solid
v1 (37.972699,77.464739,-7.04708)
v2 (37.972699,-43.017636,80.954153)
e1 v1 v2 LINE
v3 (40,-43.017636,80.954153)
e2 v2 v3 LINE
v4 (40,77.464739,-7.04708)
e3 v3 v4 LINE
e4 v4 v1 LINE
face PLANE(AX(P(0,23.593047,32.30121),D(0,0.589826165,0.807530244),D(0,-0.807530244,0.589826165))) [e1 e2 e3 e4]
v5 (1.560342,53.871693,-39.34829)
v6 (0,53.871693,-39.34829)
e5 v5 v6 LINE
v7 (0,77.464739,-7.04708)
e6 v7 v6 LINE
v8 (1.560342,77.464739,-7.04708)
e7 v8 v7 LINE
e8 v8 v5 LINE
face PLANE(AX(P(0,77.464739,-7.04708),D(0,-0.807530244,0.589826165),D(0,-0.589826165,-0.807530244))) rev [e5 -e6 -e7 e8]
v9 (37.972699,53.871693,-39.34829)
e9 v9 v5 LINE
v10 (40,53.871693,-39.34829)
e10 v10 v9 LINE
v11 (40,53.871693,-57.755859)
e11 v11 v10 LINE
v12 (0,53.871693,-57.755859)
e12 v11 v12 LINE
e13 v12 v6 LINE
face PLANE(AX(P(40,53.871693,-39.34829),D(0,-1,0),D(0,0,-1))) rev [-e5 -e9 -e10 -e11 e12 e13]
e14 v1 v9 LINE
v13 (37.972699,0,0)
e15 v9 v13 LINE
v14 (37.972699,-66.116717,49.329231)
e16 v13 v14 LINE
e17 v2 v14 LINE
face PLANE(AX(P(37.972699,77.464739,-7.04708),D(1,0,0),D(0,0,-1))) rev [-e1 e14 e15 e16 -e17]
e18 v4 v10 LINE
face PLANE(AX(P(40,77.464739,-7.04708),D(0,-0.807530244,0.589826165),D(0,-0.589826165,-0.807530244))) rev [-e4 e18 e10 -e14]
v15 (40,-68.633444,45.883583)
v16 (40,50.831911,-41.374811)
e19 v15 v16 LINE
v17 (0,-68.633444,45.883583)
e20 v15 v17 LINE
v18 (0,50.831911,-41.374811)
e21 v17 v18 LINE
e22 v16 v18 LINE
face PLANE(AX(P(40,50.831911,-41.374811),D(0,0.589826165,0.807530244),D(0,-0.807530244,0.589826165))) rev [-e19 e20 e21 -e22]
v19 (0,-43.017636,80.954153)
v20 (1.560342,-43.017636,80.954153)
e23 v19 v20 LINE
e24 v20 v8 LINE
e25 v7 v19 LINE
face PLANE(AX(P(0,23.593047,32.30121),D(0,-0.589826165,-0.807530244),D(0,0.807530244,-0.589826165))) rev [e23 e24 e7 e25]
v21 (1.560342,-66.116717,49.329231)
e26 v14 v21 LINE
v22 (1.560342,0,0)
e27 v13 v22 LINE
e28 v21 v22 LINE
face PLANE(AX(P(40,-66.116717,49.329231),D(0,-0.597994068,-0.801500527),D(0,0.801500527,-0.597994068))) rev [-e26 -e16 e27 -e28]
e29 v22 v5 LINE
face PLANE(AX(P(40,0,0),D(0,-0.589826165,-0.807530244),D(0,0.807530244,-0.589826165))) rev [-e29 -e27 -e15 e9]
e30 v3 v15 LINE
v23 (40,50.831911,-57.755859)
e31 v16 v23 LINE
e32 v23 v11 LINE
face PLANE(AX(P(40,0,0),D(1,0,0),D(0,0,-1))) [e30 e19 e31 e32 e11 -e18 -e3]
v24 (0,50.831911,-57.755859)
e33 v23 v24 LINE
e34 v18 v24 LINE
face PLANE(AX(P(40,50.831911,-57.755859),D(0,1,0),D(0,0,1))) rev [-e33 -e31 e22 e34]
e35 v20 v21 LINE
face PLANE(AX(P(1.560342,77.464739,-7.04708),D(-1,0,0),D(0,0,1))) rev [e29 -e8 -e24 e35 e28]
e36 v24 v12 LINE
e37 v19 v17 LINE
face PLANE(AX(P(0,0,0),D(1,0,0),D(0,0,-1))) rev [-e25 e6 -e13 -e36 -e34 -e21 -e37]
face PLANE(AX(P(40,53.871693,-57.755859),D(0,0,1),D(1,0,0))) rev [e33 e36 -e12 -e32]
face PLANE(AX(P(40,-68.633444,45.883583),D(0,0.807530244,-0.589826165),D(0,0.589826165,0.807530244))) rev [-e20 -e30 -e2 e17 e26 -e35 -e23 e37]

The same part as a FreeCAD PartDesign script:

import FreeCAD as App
import Part
import Sketcher

doc = App.newDocument("Part")
body = doc.addObject("PartDesign::Body", "Body")

# Sketch on YZ plane
sketch1 = body.newObject("Sketcher::SketchObject", "Sketch")
sketch1.AttachmentSupport = (doc.getObject("YZ_Plane"), [""])
sketch1.MapMode = "FlatFace"
sketch1.addGeometry(Part.LineSegment(App.Vector(53.871693, -39.34829, 0), App.Vector(0, 0, 0)), False)
sketch1.addGeometry(Part.LineSegment(App.Vector(0, 0, 0), App.Vector(-66.116717, 49.329231, 0)), False)
sketch1.addGeometry(Part.LineSegment(App.Vector(-66.116717, 49.329231, 0), App.Vector(-68.633444, 45.883583, 0)), False)
sketch1.addGeometry(Part.LineSegment(App.Vector(-68.633444, 45.883583, 0), App.Vector(50.831911, -41.374811, 0)), False)
sketch1.addGeometry(Part.LineSegment(App.Vector(50.831911, -41.374811, 0), App.Vector(50.831911, -57.755859, 0)), False)
sketch1.addGeometry(Part.LineSegment(App.Vector(50.831911, -57.755859, 0), App.Vector(53.871693, -57.755859, 0)), False)
sketch1.addGeometry(Part.LineSegment(App.Vector(53.871693, -57.755859, 0), App.Vector(53.871693, -39.34829, 0)), False)
sketch1.addConstraint(Sketcher.Constraint("Coincident", 0, 2, 1, 1))
sketch1.addConstraint(Sketcher.Constraint("Coincident", 1, 2, 2, 1))
sketch1.addConstraint(Sketcher.Constraint("Coincident", 2, 2, 3, 1))
sketch1.addConstraint(Sketcher.Constraint("Coincident", 3, 2, 4, 1))
sketch1.addConstraint(Sketcher.Constraint("Coincident", 4, 2, 5, 1))
sketch1.addConstraint(Sketcher.Constraint("Coincident", 5, 2, 6, 1))
sketch1.addConstraint(Sketcher.Constraint("Coincident", 6, 2, 0, 1))
sketch1.addConstraint(Sketcher.Constraint("Vertical", 4))
sketch1.addConstraint(Sketcher.Constraint("Horizontal", 5))
sketch1.addConstraint(Sketcher.Constraint("Vertical", 6))
sketch1.addConstraint(Sketcher.Constraint("Coincident", 0, 2, -1, 1))
sketch1.addConstraint(Sketcher.Constraint("Perpendicular", 0, 2))
sketch1.addConstraint(Sketcher.Constraint("Perpendicular", 2, 3))
sketch1.addConstraint(Sketcher.Constraint("DistanceY", 6, 1, 6, 2, 18.407569))
sketch1.addConstraint(Sketcher.Constraint("Distance", 1, 82.491171))
sketch1.addConstraint(Sketcher.Constraint("Distance", 3, 147.939171))
sketch1.addConstraint(Sketcher.Constraint("DistanceX", 5, 1, 5, 2, 3.039782))
sketch1.addConstraint(Sketcher.Constraint("DistanceY", 4, 2, 4, 1, 16.381048))
sketch1.addConstraint(Sketcher.Constraint("DistanceY", -1, 1, 1, 2, 49.329231))
sketch1.addConstraint(Sketcher.Constraint("DistanceX", -1, 1, 3, 2, 50.831911))
pad1 = body.newObject("PartDesign::Pad", "Pad")
pad1.Profile = sketch1
pad1.Length = 40

# Sketch on an angled plane
sketch2 = body.newObject("Sketcher::SketchObject", "Sketch001")
sketch2.Placement = App.Placement(App.Vector(0, 0, 0), App.Rotation(App.Vector(1, 0, 0), App.Vector(0, 0.807530244, -0.589826165), App.Vector(0, 0.589826165, 0.807530244), "ZXY"))
sketch2.addGeometry(Part.LineSegment(App.Vector(0, 66.711672, 0), App.Vector(0, -82.48692, 0)), False)
sketch2.addGeometry(Part.LineSegment(App.Vector(0, -82.48692, 0), App.Vector(1.560342, -82.48692, 0)), False)
sketch2.addGeometry(Part.LineSegment(App.Vector(1.560342, -82.48692, 0), App.Vector(1.560342, 66.711672, 0)), False)
sketch2.addGeometry(Part.LineSegment(App.Vector(1.560342, 66.711672, 0), App.Vector(0, 66.711672, 0)), False)
sketch2.addConstraint(Sketcher.Constraint("Coincident", 0, 2, 1, 1))
sketch2.addConstraint(Sketcher.Constraint("Coincident", 1, 2, 2, 1))
sketch2.addConstraint(Sketcher.Constraint("Coincident", 2, 2, 3, 1))
sketch2.addConstraint(Sketcher.Constraint("Coincident", 3, 2, 0, 1))
sketch2.addConstraint(Sketcher.Constraint("Vertical", 0))
sketch2.addConstraint(Sketcher.Constraint("Horizontal", 1))
sketch2.addConstraint(Sketcher.Constraint("Vertical", 2))
sketch2.addConstraint(Sketcher.Constraint("Horizontal", 3))
sketch2.addConstraint(Sketcher.Constraint("PointOnObject", 0, 2, -2))
sketch2.addConstraint(Sketcher.Constraint("DistanceY", 0, 2, 0, 1, 149.198592))
sketch2.addConstraint(Sketcher.Constraint("DistanceX", 1, 1, 1, 2, 1.560342))
sketch2.addConstraint(Sketcher.Constraint("DistanceY", 0, 2, -1, 1, 82.48692))
pad2 = body.newObject("PartDesign::Pad", "Pad001")
pad2.Profile = sketch2
pad2.Length = 40

# Sketch on an angled plane
sketch3 = body.newObject("Sketcher::SketchObject", "Sketch002")
sketch3.Placement = App.Placement(App.Vector(0, 0, 0), App.Rotation(App.Vector(1, 0, 0), App.Vector(0, 0.807530244, -0.589826165), App.Vector(0, 0.589826165, 0.807530244), "ZXY"))
sketch3.addGeometry(Part.LineSegment(App.Vector(37.972699, 66.711672, 0), App.Vector(37.972699, -82.48692, 0)), False)
sketch3.addGeometry(Part.LineSegment(App.Vector(37.972699, -82.48692, 0), App.Vector(40, -82.48692, 0)), False)
sketch3.addGeometry(Part.LineSegment(App.Vector(40, -82.48692, 0), App.Vector(40, 66.711672, 0)), False)
sketch3.addGeometry(Part.LineSegment(App.Vector(40, 66.711672, 0), App.Vector(37.972699, 66.711672, 0)), False)
sketch3.addConstraint(Sketcher.Constraint("Coincident", 0, 2, 1, 1))
sketch3.addConstraint(Sketcher.Constraint("Coincident", 1, 2, 2, 1))
sketch3.addConstraint(Sketcher.Constraint("Coincident", 2, 2, 3, 1))
sketch3.addConstraint(Sketcher.Constraint("Coincident", 3, 2, 0, 1))
sketch3.addConstraint(Sketcher.Constraint("Vertical", 0))
sketch3.addConstraint(Sketcher.Constraint("Horizontal", 1))
sketch3.addConstraint(Sketcher.Constraint("Vertical", 2))
sketch3.addConstraint(Sketcher.Constraint("Horizontal", 3))
sketch3.addConstraint(Sketcher.Constraint("DistanceX", -1, 1, 1, 2, 40.0))
sketch3.addConstraint(Sketcher.Constraint("DistanceX", 1, 1, 1, 2, 2.027301))
sketch3.addConstraint(Sketcher.Constraint("DistanceY", 0, 2, 0, 1, 149.198592))
sketch3.addConstraint(Sketcher.Constraint("DistanceY", 0, 2, -1, 1, 82.48692))
pad3 = body.newObject("PartDesign::Pad", "Pad002")
pad3.Profile = sketch3
pad3.Length = 40

doc.recompute()
